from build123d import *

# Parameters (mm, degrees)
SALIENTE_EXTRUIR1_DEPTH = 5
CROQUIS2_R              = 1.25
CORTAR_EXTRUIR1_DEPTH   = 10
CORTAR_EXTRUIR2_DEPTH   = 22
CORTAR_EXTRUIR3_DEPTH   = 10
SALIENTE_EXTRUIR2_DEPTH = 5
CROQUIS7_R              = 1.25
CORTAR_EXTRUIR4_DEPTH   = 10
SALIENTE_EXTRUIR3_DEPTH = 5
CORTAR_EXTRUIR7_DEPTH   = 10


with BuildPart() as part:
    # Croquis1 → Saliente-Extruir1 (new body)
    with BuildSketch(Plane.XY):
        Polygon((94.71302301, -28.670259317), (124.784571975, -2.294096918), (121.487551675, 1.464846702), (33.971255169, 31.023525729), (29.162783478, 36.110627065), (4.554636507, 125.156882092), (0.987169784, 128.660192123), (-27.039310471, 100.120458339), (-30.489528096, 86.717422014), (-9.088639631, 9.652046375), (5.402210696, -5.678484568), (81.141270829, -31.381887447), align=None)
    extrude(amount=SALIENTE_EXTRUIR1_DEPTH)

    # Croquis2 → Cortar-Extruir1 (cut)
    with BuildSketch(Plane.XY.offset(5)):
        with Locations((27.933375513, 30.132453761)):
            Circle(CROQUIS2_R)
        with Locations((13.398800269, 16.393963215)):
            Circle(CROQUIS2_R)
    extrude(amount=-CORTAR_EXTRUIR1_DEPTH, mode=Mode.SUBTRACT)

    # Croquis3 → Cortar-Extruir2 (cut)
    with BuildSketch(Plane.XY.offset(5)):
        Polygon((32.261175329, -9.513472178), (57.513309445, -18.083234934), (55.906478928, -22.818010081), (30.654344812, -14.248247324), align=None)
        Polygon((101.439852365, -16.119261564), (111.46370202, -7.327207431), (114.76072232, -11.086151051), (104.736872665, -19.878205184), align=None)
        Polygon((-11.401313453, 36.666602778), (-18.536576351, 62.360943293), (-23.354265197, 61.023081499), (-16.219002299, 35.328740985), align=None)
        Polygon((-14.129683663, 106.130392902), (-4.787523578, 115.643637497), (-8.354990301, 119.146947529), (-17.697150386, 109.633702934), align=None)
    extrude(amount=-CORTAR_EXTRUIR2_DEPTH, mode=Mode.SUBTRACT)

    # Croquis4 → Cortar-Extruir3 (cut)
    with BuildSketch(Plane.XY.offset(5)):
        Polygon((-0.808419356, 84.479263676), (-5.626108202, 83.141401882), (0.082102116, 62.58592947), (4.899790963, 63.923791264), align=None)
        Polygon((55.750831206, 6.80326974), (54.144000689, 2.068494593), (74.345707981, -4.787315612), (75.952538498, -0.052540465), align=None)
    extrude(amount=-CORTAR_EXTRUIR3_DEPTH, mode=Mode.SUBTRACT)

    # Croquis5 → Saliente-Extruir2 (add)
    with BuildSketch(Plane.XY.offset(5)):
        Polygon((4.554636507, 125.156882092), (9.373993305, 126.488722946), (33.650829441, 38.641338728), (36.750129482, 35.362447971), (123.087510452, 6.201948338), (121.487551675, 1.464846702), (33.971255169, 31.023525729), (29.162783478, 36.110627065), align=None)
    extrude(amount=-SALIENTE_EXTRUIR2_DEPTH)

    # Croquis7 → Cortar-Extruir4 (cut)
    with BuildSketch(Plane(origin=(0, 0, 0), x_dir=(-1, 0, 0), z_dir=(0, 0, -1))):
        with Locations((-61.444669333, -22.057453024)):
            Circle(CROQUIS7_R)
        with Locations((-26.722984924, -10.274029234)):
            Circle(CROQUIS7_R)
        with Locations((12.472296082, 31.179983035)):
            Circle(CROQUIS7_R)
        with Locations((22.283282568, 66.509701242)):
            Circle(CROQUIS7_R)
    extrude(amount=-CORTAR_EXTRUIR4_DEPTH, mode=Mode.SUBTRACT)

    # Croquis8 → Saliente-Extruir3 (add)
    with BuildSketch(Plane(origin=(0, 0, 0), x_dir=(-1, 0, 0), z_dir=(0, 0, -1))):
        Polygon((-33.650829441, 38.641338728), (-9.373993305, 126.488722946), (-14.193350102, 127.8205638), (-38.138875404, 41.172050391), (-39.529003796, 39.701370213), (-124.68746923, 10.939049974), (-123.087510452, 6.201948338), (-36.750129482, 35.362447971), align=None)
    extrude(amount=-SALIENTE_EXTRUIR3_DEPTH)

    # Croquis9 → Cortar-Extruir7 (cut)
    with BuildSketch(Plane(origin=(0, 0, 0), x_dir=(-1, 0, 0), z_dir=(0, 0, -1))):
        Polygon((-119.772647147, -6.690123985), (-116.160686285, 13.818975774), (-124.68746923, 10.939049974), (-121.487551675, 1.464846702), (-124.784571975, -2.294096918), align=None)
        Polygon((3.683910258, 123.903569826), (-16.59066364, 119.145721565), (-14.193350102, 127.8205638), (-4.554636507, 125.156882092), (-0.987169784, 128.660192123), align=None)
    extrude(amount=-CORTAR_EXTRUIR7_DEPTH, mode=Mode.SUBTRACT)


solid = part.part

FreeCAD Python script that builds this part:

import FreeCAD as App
import Part
import Sketcher

doc = App.newDocument("Part")
body = doc.addObject("PartDesign::Body", "Body")

sketch1 = body.newObject("Sketcher::SketchObject", "Sketch")
sketch1.AttachmentSupport = (doc.getObject("XY_Plane"), [""])
sketch1.MapMode = "FlatFace"
sketch1.addGeometry([
    Part.LineSegment(App.Vector(94.713023, -28.670259, 0), App.Vector(124.784572, -2.294097, 0)),
    Part.LineSegment(App.Vector(124.784572, -2.294097, 0), App.Vector(121.487552, 1.464847, 0)),
    Part.LineSegment(App.Vector(121.487552, 1.464847, 0), App.Vector(33.971255, 31.023526, 0)),
    Part.LineSegment(App.Vector(33.971255, 31.023526, 0), App.Vector(29.162783, 36.110627, 0)),
    Part.LineSegment(App.Vector(29.162783, 36.110627, 0), App.Vector(4.554637, 125.156882, 0)),
    Part.LineSegment(App.Vector(4.554637, 125.156882, 0), App.Vector(0.98717, 128.660192, 0)),
    Part.LineSegment(App.Vector(0.98717, 128.660192, 0), App.Vector(-27.03931, 100.120458, 0)),
    Part.LineSegment(App.Vector(-27.03931, 100.120458, 0), App.Vector(-30.489528, 86.717422, 0)),
    Part.LineSegment(App.Vector(-30.489528, 86.717422, 0), App.Vector(-9.08864, 9.652046, 0)),
    Part.LineSegment(App.Vector(-9.08864, 9.652046, 0), App.Vector(5.402211, -5.678485, 0)),
    Part.LineSegment(App.Vector(5.402211, -5.678485, 0), App.Vector(81.141271, -31.381887, 0)),
    Part.LineSegment(App.Vector(81.141271, -31.381887, 0), App.Vector(94.713023, -28.670259, 0)),
], False)
sketch1.addConstraint([
    Sketcher.Constraint("Coincident", 0, 2, 1, 1),
    Sketcher.Constraint("Coincident", 1, 2, 2, 1),
    Sketcher.Constraint("Coincident", 2, 2, 3, 1),
    Sketcher.Constraint("Coincident", 3, 2, 4, 1),
    Sketcher.Constraint("Coincident", 4, 2, 5, 1),
    Sketcher.Constraint("Coincident", 5, 2, 6, 1),
    Sketcher.Constraint("Coincident", 6, 2, 7, 1),
    Sketcher.Constraint("Coincident", 7, 2, 8, 1),
    Sketcher.Constraint("Coincident", 8, 2, 9, 1),
    Sketcher.Constraint("Coincident", 9, 2, 10, 1),
    Sketcher.Constraint("Coincident", 10, 2, 11, 1),
    Sketcher.Constraint("Coincident", 11, 2, 0, 1),
    Sketcher.Constraint("Perpendicular", 0, 1),
    Sketcher.Constraint("Perpendicular", 5, 6),
    Sketcher.Constraint("Parallel", 3, 9),
    Sketcher.Constraint("Equal", 1, 5),
    Sketcher.Constraint("Equal", 0, 6),
    Sketcher.Constraint("Equal", 8, 10),
    Sketcher.Constraint("Equal", 7, 11),
    Sketcher.Constraint("Distance", 0, 40.0),
    Sketcher.Constraint("Distance", 1, 5.0),
    Sketcher.Constraint("Distance", 3, 7.0),
    Sketcher.Constraint("DistanceY", 2, 2, 3, 2, 5.087101),
    Sketcher.Constraint("DistanceX", 10, 2, 0, 2, 43.643301),
    Sketcher.Constraint("Distance", 2, 92.373252),
    Sketcher.Constraint("Distance", 4, 92.383962),
    Sketcher.Constraint("Distance", 9, 21.095258),
    Sketcher.Constraint("DistanceX", -1, 1, 0, 2, 124.784572),
    Sketcher.Constraint("DistanceX", -1, 1, 1, 2, 121.487552),
    Sketcher.Constraint("DistanceX", -1, 1, 5, 2, 0.98717),
    Sketcher.Constraint("DistanceX", 6, 2, -1, 1, 27.03931),
    Sketcher.Constraint("DistanceY", -1, 1, 6, 2, 100.120458),
    Sketcher.Constraint("DistanceX", 7, 2, -1, 1, 30.489528),
    Sketcher.Constraint("DistanceX", 8, 2, -1, 1, 9.08864),
    Sketcher.Constraint("DistanceY", 11, 2, -1, 1, 28.670259),
    Sketcher.Constraint("DistanceY", 7, 2, 4, 2, 38.43946),
])
pad1 = body.newObject("PartDesign::Pad", "Pad")
pad1.Profile = sketch1
pad1.Length = 5

sketch2 = body.newObject("Sketcher::SketchObject", "Sketch001")
sketch2.AttachmentSupport = (doc.getObject("XY_Plane"), [""])
sketch2.MapMode = "FlatFace"
sketch2.AttachmentOffset = App.Placement(App.Vector(0, 0, 5), App.Rotation())
sketch2.addGeometry([
    Part.Circle(App.Vector(27.933376, 30.132454, 0), App.Vector(0, 0, 1), 1.25),
    Part.Circle(App.Vector(13.3988, 16.393963, 0), App.Vector(0, 0, 1), 1.25),
], False)
sketch2.addConstraint([
    Sketcher.Constraint("Equal", 0, 1),
    Sketcher.Constraint("Diameter", 0, 2.5),
    Sketcher.Constraint("DistanceX", -1, 1, 1, 3, 13.3988),
    Sketcher.Constraint("DistanceY", 1, 3, 0, 3, 13.738491),
    Sketcher.Constraint("DistanceX", -1, 1, 0, 3, 27.933376),
    Sketcher.Constraint("DistanceY", -1, 1, 0, 3, 30.132454),
])
pocket1 = body.newObject("PartDesign::Pocket", "Pocket")
pocket1.Profile = sketch2
pocket1.Length = 10

sketch3 = body.newObject("Sketcher::SketchObject", "Sketch002")
sketch3.AttachmentSupport = (doc.getObject("XY_Plane"), [""])
sketch3.MapMode = "FlatFace"
sketch3.AttachmentOffset = App.Placement(App.Vector(0, 0, 5), App.Rotation())
sketch3.addGeometry([
    Part.LineSegment(App.Vector(57.513309, -18.083235, 0), App.Vector(32.261175, -9.513472, 0)),
    Part.LineSegment(App.Vector(32.261175, -9.513472, 0), App.Vector(30.654345, -14.248247, 0)),
    Part.LineSegment(App.Vector(30.654345, -14.248247, 0), App.Vector(55.906479, -22.81801, 0)),
    Part.LineSegment(App.Vector(55.906479, -22.81801, 0), App.Vector(57.513309, -18.083235, 0)),
    Part.LineSegment(App.Vector(111.463702, -7.327207, 0), App.Vector(101.439852, -16.119262, 0)),
    Part.LineSegment(App.Vector(101.439852, -16.119262, 0), App.Vector(104.736873, -19.878205, 0)),
    Part.LineSegment(App.Vector(104.736873, -19.878205, 0), App.Vector(114.760722, -11.086151, 0)),
    Part.LineSegment(App.Vector(114.760722, -11.086151, 0), App.Vector(111.463702, -7.327207, 0)),
    Part.LineSegment(App.Vector(-11.401313, 36.666603, 0), App.Vector(-18.536576, 62.360943, 0)),
    Part.LineSegment(App.Vector(-18.536576, 62.360943, 0), App.Vector(-23.354265, 61.023081, 0)),
    Part.LineSegment(App.Vector(-23.354265, 61.023081, 0), App.Vector(-16.219002, 35.328741, 0)),
    Part.LineSegment(App.Vector(-16.219002, 35.328741, 0), App.Vector(-11.401313, 36.666603, 0)),
    Part.LineSegment(App.Vector(-14.129684, 106.130393, 0), App.Vector(-4.787524, 115.643637, 0)),
    Part.LineSegment(App.Vector(-4.787524, 115.643637, 0), App.Vector(-8.35499, 119.146948, 0)),
    Part.LineSegment(App.Vector(-8.35499, 119.146948, 0), App.Vector(-17.69715, 109.633703, 0)),
    Part.LineSegment(App.Vector(-17.69715, 109.633703, 0), App.Vector(-14.129684, 106.130393, 0)),
], False)
sketch3.addConstraint([
    Sketcher.Constraint("Coincident", 0, 2, 1, 1),
    Sketcher.Constraint("Coincident", 1, 2, 2, 1),
    Sketcher.Constraint("Coincident", 2, 2, 3, 1),
    Sketcher.Constraint("Coincident", 3, 2, 0, 1),
    Sketcher.Constraint("Coincident", 4, 2, 5, 1),
    Sketcher.Constraint("Coincident", 5, 2, 6, 1),
    Sketcher.Constraint("Coincident", 6, 2, 7, 1),
    Sketcher.Constraint("Coincident", 7, 2, 4, 1),
    Sketcher.Constraint("Coincident", 8, 2, 9, 1),
    Sketcher.Constraint("Coincident", 9, 2, 10, 1),
    Sketcher.Constraint("Coincident", 10, 2, 11, 1),
    Sketcher.Constraint("Coincident", 11, 2, 8, 1),
    Sketcher.Constraint("Coincident", 12, 2, 13, 1),
    Sketcher.Constraint("Coincident", 13, 2, 14, 1),
    Sketcher.Constraint("Coincident", 14, 2, 15, 1),
    Sketcher.Constraint("Coincident", 15, 2, 12, 1),
    Sketcher.Constraint("Distance", 1, 5.0),
    Sketcher.Constraint("Distance", 3, 5.0),
    Sketcher.Constraint("Distance", 5, 5.0),
    Sketcher.Constraint("Distance", 7, 5.0),
    Sketcher.Constraint("Distance", 9, 5.0),
    Sketcher.Constraint("Distance", 11, 5.0),
    Sketcher.Constraint("Distance", 13, 5.0),
    Sketcher.Constraint("Distance", 15, 5.0),
    Sketcher.Constraint("DistanceX", 12, 2, 0, 2, 37.048699),
    Sketcher.Constraint("DistanceY", 11, 2, 14, 2, 72.9671),
    Sketcher.Constraint("DistanceX", -1, 1, 2, 2, 55.906479),
    Sketcher.Constraint("DistanceY", 2, 2, -1, 1, 22.81801),
    Sketcher.Constraint("DistanceX", -1, 1, 3, 2, 57.513309),
    Sketcher.Constraint("DistanceY", 4, 2, -1, 1, 16.119262),
    Sketcher.Constraint("DistanceY", 6, 2, -1, 1, 11.086151),
    Sketcher.Constraint("DistanceY", -1, 1, 9, 2, 61.023081),
    Sketcher.Constraint("DistanceY", -1, 1, 10, 2, 35.328741),
    Sketcher.Constraint("DistanceX", 13, 2, -1, 1, 8.35499),
    Sketcher.Constraint("DistanceX", 14, 2, -1, 1, 17.69715),
    Sketcher.Constraint("DistanceX", 1, 2, 0, 2, 1.606831),
    Sketcher.Constraint("DistanceY", 4, 2, 0, 2, 6.605789),
    Sketcher.Constraint("DistanceX", 4, 2, 5, 2, 3.29702),
    Sketcher.Constraint("DistanceX", 5, 2, 6, 2, 10.02385),
    Sketcher.Constraint("DistanceX", 7, 2, 6, 2, 3.29702),
    Sketcher.Constraint("DistanceX", 8, 2, 0, 2, 50.797752),
    Sketcher.Constraint("DistanceY", 1, 2, 8, 2, 76.609191),
    Sketcher.Constraint("DistanceX", 8, 2, 4, 2, 119.976429),
    Sketcher.Constraint("DistanceX", 10, 2, 3, 2, 73.732312),
    Sketcher.Constraint("DistanceX", 10, 2, 11, 2, 4.817689),
    Sketcher.Constraint("DistanceX", 9, 2, 11, 2, 11.952952),
    Sketcher.Constraint("DistanceY", 0, 2, 12, 2, 125.15711),
    Sketcher.Constraint("DistanceY", 15, 2, 14, 2, 3.50331),
])
pocket2 = body.newObject("PartDesign::Pocket", "Pocket001")
pocket2.Profile = sketch3
pocket2.Length = 22

sketch4 = body.newObject("Sketcher::SketchObject", "Sketch003")
sketch4.AttachmentSupport = (doc.getObject("XY_Plane"), [""])
sketch4.MapMode = "FlatFace"
sketch4.AttachmentOffset = App.Placement(App.Vector(0, 0, 5), App.Rotation())
sketch4.addGeometry([
    Part.LineSegment(App.Vector(-0.808419, 84.479264, 0), App.Vector(-5.626108, 83.141402, 0)),
    Part.LineSegment(App.Vector(-5.626108, 83.141402, 0), App.Vector(0.082102, 62.585929, 0)),
    Part.LineSegment(App.Vector(0.082102, 62.585929, 0), App.Vector(4.899791, 63.923791, 0)),
    Part.LineSegment(App.Vector(4.899791, 63.923791, 0), App.Vector(-0.808419, 84.479264, 0)),
    Part.LineSegment(App.Vector(55.750831, 6.80327, 0), App.Vector(54.144001, 2.068495, 0)),
    Part.LineSegment(App.Vector(54.144001, 2.068495, 0), App.Vector(74.345708, -4.787316, 0)),
    Part.LineSegment(App.Vector(74.345708, -4.787316, 0), App.Vector(75.952538, -0.05254, 0)),
    Part.LineSegment(App.Vector(75.952538, -0.05254, 0), App.Vector(55.750831, 6.80327, 0)),
], False)
sketch4.addConstraint([
    Sketcher.Constraint("Coincident", 0, 2, 1, 1),
    Sketcher.Constraint("Coincident", 1, 2, 2, 1),
    Sketcher.Constraint("Coincident", 2, 2, 3, 1),
    Sketcher.Constraint("Coincident", 3, 2, 0, 1),
    Sketcher.Constraint("Coincident", 4, 2, 5, 1),
    Sketcher.Constraint("Coincident", 5, 2, 6, 1),
    Sketcher.Constraint("Coincident", 6, 2, 7, 1),
    Sketcher.Constraint("Coincident", 7, 2, 4, 1),
    Sketcher.Constraint("Distance", 0, 5.0),
    Sketcher.Constraint("Distance", 2, 5.0),
    Sketcher.Constraint("Distance", 4, 5.0),
    Sketcher.Constraint("Distance", 6, 5.0),
    Sketcher.Constraint("DistanceX", -1, 1, 4, 2, 54.144001),
    Sketcher.Constraint("DistanceY", -1, 1, 0, 2, 83.141402),
    Sketcher.Constraint("DistanceX", 0, 2, 2, 2, 10.525899),
    Sketcher.Constraint("DistanceX", 1, 2, 4, 2, 54.061899),
    Sketcher.Constraint("DistanceX", 0, 2, -1, 1, 5.626108),
    Sketcher.Constraint("DistanceY", -1, 1, 1, 2, 62.585929),
    Sketcher.Constraint("DistanceX", 3, 2, -1, 1, 0.808419),
    Sketcher.Constraint("DistanceX", -1, 1, 6, 2, 75.952538),
    Sketcher.Constraint("DistanceY", 6, 2, -1, 1, 0.05254),
    Sketcher.Constraint("DistanceX", -1, 1, 7, 2, 55.750831),
    Sketcher.Constraint("DistanceY", -1, 1, 7, 2, 6.80327),
    Sketcher.Constraint("DistanceY", 5, 2, 4, 2, 6.85581),
])
pocket3 = body.newObject("PartDesign::Pocket", "Pocket002")
pocket3.Profile = sketch4
pocket3.Length = 10

sketch5 = body.newObject("Sketcher::SketchObject", "Sketch004")
sketch5.AttachmentSupport = (doc.getObject("XY_Plane"), [""])
sketch5.MapMode = "FlatFace"
sketch5.AttachmentOffset = App.Placement(App.Vector(0, 0, 5), App.Rotation())
sketch5.addGeometry([
    Part.LineSegment(App.Vector(9.373993, 126.488723, 0), App.Vector(4.554637, 125.156882, 0)),
    Part.LineSegment(App.Vector(4.554637, 125.156882, 0), App.Vector(29.162783, 36.110627, 0)),
    Part.LineSegment(App.Vector(29.162783, 36.110627, 0), App.Vector(33.971255, 31.023526, 0)),
    Part.LineSegment(App.Vector(33.971255, 31.023526, 0), App.Vector(121.487552, 1.464847, 0)),
    Part.LineSegment(App.Vector(121.487552, 1.464847, 0), App.Vector(123.08751, 6.201948, 0)),
    Part.LineSegment(App.Vector(123.08751, 6.201948, 0), App.Vector(36.750129, 35.362448, 0)),
    Part.LineSegment(App.Vector(36.750129, 35.362448, 0), App.Vector(33.650829, 38.641339, 0)),
    Part.LineSegment(App.Vector(33.650829, 38.641339, 0), App.Vector(9.373993, 126.488723, 0)),
], False)
sketch5.addConstraint([
    Sketcher.Constraint("Coincident", 0, 2, 1, 1),
    Sketcher.Constraint("Coincident", 1, 2, 2, 1),
    Sketcher.Constraint("Coincident", 2, 2, 3, 1),
    Sketcher.Constraint("Coincident", 3, 2, 4, 1),
    Sketcher.Constraint("Coincident", 4, 2, 5, 1),
    Sketcher.Constraint("Coincident", 5, 2, 6, 1),
    Sketcher.Constraint("Coincident", 6, 2, 7, 1),
    Sketcher.Constraint("Coincident", 7, 2, 0, 1),
    Sketcher.Constraint("Distance", 0, 5.0),
    Sketcher.Constraint("Distance", 2, 7.0),
    Sketcher.Constraint("Distance", 4, 5.0),
    Sketcher.Constraint("DistanceY", 2, 2, 1, 2, 5.087101),
    Sketcher.Constraint("DistanceY", 3, 2, 4, 2, 4.737102),
    Sketcher.Constraint("DistanceY", 4, 2, 5, 2, 29.1605),
    Sketcher.Constraint("DistanceX", 6, 2, 5, 2, 3.0993),
    Sketcher.Constraint("Distance", 1, 92.383962),
    Sketcher.Constraint("Distance", 3, 92.373252),
    Sketcher.Constraint("Distance", 5, 91.128909),
    Sketcher.Constraint("Distance", 6, 4.511849),
    Sketcher.Constraint("DistanceX", -1, 1, 3, 2, 121.487552),
    Sketcher.Constraint("DistanceY", -1, 1, 4, 2, 6.201948),
    Sketcher.Constraint("DistanceX", 0, 2, 2, 2, 29.416619),
    Sketcher.Constraint("DistanceY", 3, 2, 2, 2, 29.558679),
    Sketcher.Constraint("DistanceY", 0, 2, 7, 2, 1.331841),
])
pad2 = body.newObject("PartDesign::Pad", "Pad001")
pad2.Profile = sketch5
pad2.Length = 5
pad2.Reversed = True

sketch6 = body.newObject("Sketcher::SketchObject", "Sketch005")
sketch6.AttachmentSupport = (doc.getObject("XY_Plane"), [""])
sketch6.MapMode = "FlatFace"
sketch6.addGeometry([
    Part.Circle(App.Vector(61.444669, -22.057453, 0), App.Vector(0, 0, 1), 1.25),
    Part.Circle(App.Vector(26.722985, -10.274029, 0), App.Vector(0, 0, 1), 1.25),
    Part.Circle(App.Vector(-12.472296, 31.179983, 0), App.Vector(0, 0, 1), 1.25),
    Part.Circle(App.Vector(-22.283283, 66.509701, 0), App.Vector(0, 0, 1), 1.25),
], False)
sketch6.addConstraint([
    Sketcher.Constraint("Equal", 0, 1),
    Sketcher.Constraint("Equal", 1, 2),
    Sketcher.Constraint("Equal", 2, 3),
    Sketcher.Constraint("Diameter", 0, 2.5),
    Sketcher.Constraint("DistanceY", -1, 1, 3, 3, 66.509701),
    Sketcher.Constraint("DistanceX", -1, 1, 0, 3, 61.444669),
    Sketcher.Constraint("DistanceY", 1, 3, -1, 1, 10.274029),
    Sketcher.Constraint("DistanceX", 2, 3, 1, 3, 39.195281),
    Sketcher.Constraint("DistanceY", 2, 3, 3, 3, 35.329718),
    Sketcher.Constraint("DistanceX", 3, 3, 0, 3, 83.727952),
    Sketcher.Constraint("DistanceY", 0, 3, -1, 1, 22.057453),
    Sketcher.Constraint("DistanceX", -1, 1, 1, 3, 26.722985),
])
pocket4 = body.newObject("PartDesign::Pocket", "Pocket003")
pocket4.Profile = sketch6
pocket4.Length = 10
pocket4.Reversed = True

sketch7 = body.newObject("Sketcher::SketchObject", "Sketch006")
sketch7.AttachmentSupport = (doc.getObject("XY_Plane"), [""])
sketch7.MapMode = "FlatFace"
sketch7.addGeometry([
    Part.LineSegment(App.Vector(33.650829, 38.641339, 0), App.Vector(9.373993, 126.488723, 0)),
    Part.LineSegment(App.Vector(9.373993, 126.488723, 0), App.Vector(14.19335, 127.820564, 0)),
    Part.LineSegment(App.Vector(14.19335, 127.820564, 0), App.Vector(38.138875, 41.17205, 0)),
    Part.LineSegment(App.Vector(38.138875, 41.17205, 0), App.Vector(39.529004, 39.70137, 0)),
    Part.LineSegment(App.Vector(39.529004, 39.70137, 0), App.Vector(124.687469, 10.93905, 0)),
    Part.LineSegment(App.Vector(124.687469, 10.93905, 0), App.Vector(123.08751, 6.201948, 0)),
    Part.LineSegment(App.Vector(123.08751, 6.201948, 0), App.Vector(36.750129, 35.362448, 0)),
    Part.LineSegment(App.Vector(36.750129, 35.362448, 0), App.Vector(33.650829, 38.641339, 0)),
], False)
sketch7.addConstraint([
    Sketcher.Constraint("Coincident", 0, 2, 1, 1),
    Sketcher.Constraint("Coincident", 1, 2, 2, 1),
    Sketcher.Constraint("Coincident", 2, 2, 3, 1),
    Sketcher.Constraint("Coincident", 3, 2, 4, 1),
    Sketcher.Constraint("Coincident", 4, 2, 5, 1),
    Sketcher.Constraint("Coincident", 5, 2, 6, 1),
    Sketcher.Constraint("Coincident", 6, 2, 7, 1),
    Sketcher.Constraint("Coincident", 7, 2, 0, 1),
    Sketcher.Constraint("Distance", 1, 5.0),
    Sketcher.Constraint("Distance", 5, 5.0),
    Sketcher.Constraint("DistanceY", 4, 2, 2, 2, 30.233),
    Sketcher.Constraint("Distance", 3, 2.023699),
    Sketcher.Constraint("DistanceY", 5, 2, 4, 2, 4.737102),
    Sketcher.Constraint("DistanceY", 5, 2, 6, 2, 29.1605),
    Sketcher.Constraint("DistanceX", 7, 2, 6, 2, 3.0993),
    Sketcher.Constraint("Distance", 6, 91.128909),
    Sketcher.Constraint("Distance", 7, 4.511849),
    Sketcher.Constraint("DistanceX", -1, 1, 1, 2, 14.19335),
    Sketcher.Constraint("DistanceY", -1, 1, 2, 2, 41.17205),
    Sketcher.Constraint("DistanceY", -1, 1, 3, 2, 39.70137),
    Sketcher.Constraint("DistanceX", -1, 1, 4, 2, 124.687469),
    Sketcher.Constraint("DistanceY", 0, 2, 1, 2, 1.331841),
    Sketcher.Constraint("DistanceX", 0, 2, 3, 2, 30.15501),
    Sketcher.Constraint("Distance", 0, 91.140154),
])
pad3 = body.newObject("PartDesign::Pad", "Pad002")
pad3.Profile = sketch7
pad3.Length = 5

sketch8 = body.newObject("Sketcher::SketchObject", "Sketch007")
sketch8.AttachmentSupport = (doc.getObject("XY_Plane"), [""])
sketch8.MapMode = "FlatFace"
sketch8.addGeometry([
    Part.LineSegment(App.Vector(119.772647, -6.690124, 0), App.Vector(116.160686, 13.818976, 0)),
    Part.LineSegment(App.Vector(116.160686, 13.818976, 0), App.Vector(124.687469, 10.93905, 0)),
    Part.LineSegment(App.Vector(124.687469, 10.93905, 0), App.Vector(121.487552, 1.464847, 0)),
    Part.LineSegment(App.Vector(121.487552, 1.464847, 0), App.Vector(124.784572, -2.294097, 0)),
    Part.LineSegment(App.Vector(124.784572, -2.294097, 0), App.Vector(119.772647, -6.690124, 0)),
    Part.LineSegment(App.Vector(16.590664, 119.145722, 0), App.Vector(-3.68391, 123.90357, 0)),
    Part.LineSegment(App.Vector(-3.68391, 123.90357, 0), App.Vector(0.98717, 128.660192, 0)),
    Part.LineSegment(App.Vector(0.98717, 128.660192, 0), App.Vector(4.554637, 125.156882, 0)),
    Part.LineSegment(App.Vector(4.554637, 125.156882, 0), App.Vector(14.19335, 127.820564, 0)),
    Part.LineSegment(App.Vector(14.19335, 127.820564, 0), App.Vector(16.590664, 119.145722, 0)),
], False)
sketch8.addConstraint([
    Sketcher.Constraint("Coincident", 0, 2, 1, 1),
    Sketcher.Constraint("Coincident", 1, 2, 2, 1),
    Sketcher.Constraint("Coincident", 2, 2, 3, 1),
    Sketcher.Constraint("Coincident", 3, 2, 4, 1),
    Sketcher.Constraint("Coincident", 4, 2, 0, 1),
    Sketcher.Constraint("Coincident", 5, 2, 6, 1),
    Sketcher.Constraint("Coincident", 6, 2, 7, 1),
    Sketcher.Constraint("Coincident", 7, 2, 8, 1),
    Sketcher.Constraint("Coincident", 8, 2, 9, 1),
    Sketcher.Constraint("Coincident", 9, 2, 5, 1),
    Sketcher.Constraint("Perpendicular", 1, 2),
    Sketcher.Constraint("Perpendicular", 3, 4),
    Sketcher.Constraint("Perpendicular", 6, 7),
    Sketcher.Constraint("Perpendicular", 8, 9),
    Sketcher.Constraint("Equal", 4, 6),
    Sketcher.Constraint("Equal", 3, 7),
    Sketcher.Constraint("Equal", 2, 8),
    Sketcher.Constraint("Equal", 1, 9),
    Sketcher.Constraint("Distance", 1, 9.0),
    Sketcher.Constraint("Distance", 2, 10.0),
    Sketcher.Constraint("Distance", 3, 5.0),
    Sketcher.Constraint("DistanceY", 4, 2, 0, 2, 20.5091),
    Sketcher.Constraint("DistanceX", 6, 2, 1, 2, 123.700299),
    Sketcher.Constraint("Distance", 0, 20.824731),
    Sketcher.Constraint("DistanceX", -1, 1, 1, 2, 124.687469),
    Sketcher.Constraint("DistanceY", -1, 1, 1, 2, 10.93905),
    Sketcher.Constraint("DistanceX", -1, 1, 2, 2, 121.487552),
    Sketcher.Constraint("DistanceX", 5, 2, -1, 1, 3.68391),
    Sketcher.Constraint("DistanceY", -1, 1, 5, 2, 123.90357),
    Sketcher.Constraint("DistanceX", -1, 1, 8, 2, 14.19335),
])
pocket5 = body.newObject("PartDesign::Pocket", "Pocket004")
pocket5.Profile = sketch8
pocket5.Length = 10
pocket5.Reversed = True

doc.recompute()
